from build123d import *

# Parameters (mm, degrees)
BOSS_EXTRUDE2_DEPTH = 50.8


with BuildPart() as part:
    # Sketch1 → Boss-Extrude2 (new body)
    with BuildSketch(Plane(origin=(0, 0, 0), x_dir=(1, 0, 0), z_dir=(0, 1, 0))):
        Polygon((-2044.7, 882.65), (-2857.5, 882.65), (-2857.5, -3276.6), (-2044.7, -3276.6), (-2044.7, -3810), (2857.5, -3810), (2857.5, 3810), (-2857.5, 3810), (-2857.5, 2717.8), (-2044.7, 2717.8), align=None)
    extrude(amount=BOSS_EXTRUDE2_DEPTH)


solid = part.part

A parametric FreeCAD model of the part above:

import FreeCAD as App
import Part
import Sketcher
Q = App.Units.Quantity


def add_polygon(sketch, points):
    """Adds a closed chain of lines whose ends are joined by coincident constraints."""
    first, n = sketch.GeometryCount, len(points)
    for a, b in zip(points, points[1:] + points[:1]):
        sketch.addGeometry(Part.LineSegment(App.Vector(*a, 0), App.Vector(*b, 0)), False)
    for i in range(n):
        sketch.addConstraint(Sketcher.Constraint("Coincident", first + i, 2, first + (i + 1) % n, 1))

doc = App.newDocument("Part")
body = doc.addObject("PartDesign::Body", "Body")

# Sketch on XZ plane
sketch1 = body.newObject("Sketcher::SketchObject", "Sketch")
sketch1.AttachmentSupport = (doc.getObject("XZ_Plane"), [""])
sketch1.MapMode = "FlatFace"
add_polygon(sketch1, [(-2044.7, -882.65), (-2857.5, -882.65), (-2857.5, 3276.6), (-2044.7, 3276.6), (-2044.7, 3810), (2857.5, 3810), (2857.5, -3810), (-2857.5, -3810), (-2857.5, -2717.8), (-2044.7, -2717.8)])  # lines 0-9
sketch1.addConstraint([
    Sketcher.Constraint("Horizontal", 0),
    Sketcher.Constraint("Vertical", 1),
    Sketcher.Constraint("Horizontal", 2),
    Sketcher.Constraint("Vertical", 3),
    Sketcher.Constraint("Horizontal", 4),
    Sketcher.Constraint("Vertical", 5),
    Sketcher.Constraint("Horizontal", 6),
    Sketcher.Constraint("Vertical", 7),
    Sketcher.Constraint("Horizontal", 8),
    Sketcher.Constraint("Vertical", 9),
    Sketcher.Constraint("Symmetric", 4, 2, 6, 2, -1, 1),
    Sketcher.Constraint("Vertical", 1, 2, 6, 2),
    Sketcher.Constraint("Vertical", 3, 2, 8, 2),
    Sketcher.Constraint("DistanceX", 0, 2, 0, 1, Q("32 in")),
    Sketcher.Constraint("DistanceX", 4, 1, 4, 2, Q("193 in")),
    Sketcher.Constraint("DistanceY", 3, 1, 3, 2, Q("21 in")),
    Sketcher.Constraint("DistanceY", 5, 2, 5, 1, Q("300 in")),
    Sketcher.Constraint("DistanceY", 7, 1, 7, 2, Q("43 in")),
    Sketcher.Constraint("DistanceY", 1, 1, 1, 2, Q("163.75 in")),
])
pad1 = body.newObject("PartDesign::Pad", "Pad")
pad1.Profile = sketch1
pad1.Length = Q("2 in")
pad1.Reversed = True

doc.recompute()
